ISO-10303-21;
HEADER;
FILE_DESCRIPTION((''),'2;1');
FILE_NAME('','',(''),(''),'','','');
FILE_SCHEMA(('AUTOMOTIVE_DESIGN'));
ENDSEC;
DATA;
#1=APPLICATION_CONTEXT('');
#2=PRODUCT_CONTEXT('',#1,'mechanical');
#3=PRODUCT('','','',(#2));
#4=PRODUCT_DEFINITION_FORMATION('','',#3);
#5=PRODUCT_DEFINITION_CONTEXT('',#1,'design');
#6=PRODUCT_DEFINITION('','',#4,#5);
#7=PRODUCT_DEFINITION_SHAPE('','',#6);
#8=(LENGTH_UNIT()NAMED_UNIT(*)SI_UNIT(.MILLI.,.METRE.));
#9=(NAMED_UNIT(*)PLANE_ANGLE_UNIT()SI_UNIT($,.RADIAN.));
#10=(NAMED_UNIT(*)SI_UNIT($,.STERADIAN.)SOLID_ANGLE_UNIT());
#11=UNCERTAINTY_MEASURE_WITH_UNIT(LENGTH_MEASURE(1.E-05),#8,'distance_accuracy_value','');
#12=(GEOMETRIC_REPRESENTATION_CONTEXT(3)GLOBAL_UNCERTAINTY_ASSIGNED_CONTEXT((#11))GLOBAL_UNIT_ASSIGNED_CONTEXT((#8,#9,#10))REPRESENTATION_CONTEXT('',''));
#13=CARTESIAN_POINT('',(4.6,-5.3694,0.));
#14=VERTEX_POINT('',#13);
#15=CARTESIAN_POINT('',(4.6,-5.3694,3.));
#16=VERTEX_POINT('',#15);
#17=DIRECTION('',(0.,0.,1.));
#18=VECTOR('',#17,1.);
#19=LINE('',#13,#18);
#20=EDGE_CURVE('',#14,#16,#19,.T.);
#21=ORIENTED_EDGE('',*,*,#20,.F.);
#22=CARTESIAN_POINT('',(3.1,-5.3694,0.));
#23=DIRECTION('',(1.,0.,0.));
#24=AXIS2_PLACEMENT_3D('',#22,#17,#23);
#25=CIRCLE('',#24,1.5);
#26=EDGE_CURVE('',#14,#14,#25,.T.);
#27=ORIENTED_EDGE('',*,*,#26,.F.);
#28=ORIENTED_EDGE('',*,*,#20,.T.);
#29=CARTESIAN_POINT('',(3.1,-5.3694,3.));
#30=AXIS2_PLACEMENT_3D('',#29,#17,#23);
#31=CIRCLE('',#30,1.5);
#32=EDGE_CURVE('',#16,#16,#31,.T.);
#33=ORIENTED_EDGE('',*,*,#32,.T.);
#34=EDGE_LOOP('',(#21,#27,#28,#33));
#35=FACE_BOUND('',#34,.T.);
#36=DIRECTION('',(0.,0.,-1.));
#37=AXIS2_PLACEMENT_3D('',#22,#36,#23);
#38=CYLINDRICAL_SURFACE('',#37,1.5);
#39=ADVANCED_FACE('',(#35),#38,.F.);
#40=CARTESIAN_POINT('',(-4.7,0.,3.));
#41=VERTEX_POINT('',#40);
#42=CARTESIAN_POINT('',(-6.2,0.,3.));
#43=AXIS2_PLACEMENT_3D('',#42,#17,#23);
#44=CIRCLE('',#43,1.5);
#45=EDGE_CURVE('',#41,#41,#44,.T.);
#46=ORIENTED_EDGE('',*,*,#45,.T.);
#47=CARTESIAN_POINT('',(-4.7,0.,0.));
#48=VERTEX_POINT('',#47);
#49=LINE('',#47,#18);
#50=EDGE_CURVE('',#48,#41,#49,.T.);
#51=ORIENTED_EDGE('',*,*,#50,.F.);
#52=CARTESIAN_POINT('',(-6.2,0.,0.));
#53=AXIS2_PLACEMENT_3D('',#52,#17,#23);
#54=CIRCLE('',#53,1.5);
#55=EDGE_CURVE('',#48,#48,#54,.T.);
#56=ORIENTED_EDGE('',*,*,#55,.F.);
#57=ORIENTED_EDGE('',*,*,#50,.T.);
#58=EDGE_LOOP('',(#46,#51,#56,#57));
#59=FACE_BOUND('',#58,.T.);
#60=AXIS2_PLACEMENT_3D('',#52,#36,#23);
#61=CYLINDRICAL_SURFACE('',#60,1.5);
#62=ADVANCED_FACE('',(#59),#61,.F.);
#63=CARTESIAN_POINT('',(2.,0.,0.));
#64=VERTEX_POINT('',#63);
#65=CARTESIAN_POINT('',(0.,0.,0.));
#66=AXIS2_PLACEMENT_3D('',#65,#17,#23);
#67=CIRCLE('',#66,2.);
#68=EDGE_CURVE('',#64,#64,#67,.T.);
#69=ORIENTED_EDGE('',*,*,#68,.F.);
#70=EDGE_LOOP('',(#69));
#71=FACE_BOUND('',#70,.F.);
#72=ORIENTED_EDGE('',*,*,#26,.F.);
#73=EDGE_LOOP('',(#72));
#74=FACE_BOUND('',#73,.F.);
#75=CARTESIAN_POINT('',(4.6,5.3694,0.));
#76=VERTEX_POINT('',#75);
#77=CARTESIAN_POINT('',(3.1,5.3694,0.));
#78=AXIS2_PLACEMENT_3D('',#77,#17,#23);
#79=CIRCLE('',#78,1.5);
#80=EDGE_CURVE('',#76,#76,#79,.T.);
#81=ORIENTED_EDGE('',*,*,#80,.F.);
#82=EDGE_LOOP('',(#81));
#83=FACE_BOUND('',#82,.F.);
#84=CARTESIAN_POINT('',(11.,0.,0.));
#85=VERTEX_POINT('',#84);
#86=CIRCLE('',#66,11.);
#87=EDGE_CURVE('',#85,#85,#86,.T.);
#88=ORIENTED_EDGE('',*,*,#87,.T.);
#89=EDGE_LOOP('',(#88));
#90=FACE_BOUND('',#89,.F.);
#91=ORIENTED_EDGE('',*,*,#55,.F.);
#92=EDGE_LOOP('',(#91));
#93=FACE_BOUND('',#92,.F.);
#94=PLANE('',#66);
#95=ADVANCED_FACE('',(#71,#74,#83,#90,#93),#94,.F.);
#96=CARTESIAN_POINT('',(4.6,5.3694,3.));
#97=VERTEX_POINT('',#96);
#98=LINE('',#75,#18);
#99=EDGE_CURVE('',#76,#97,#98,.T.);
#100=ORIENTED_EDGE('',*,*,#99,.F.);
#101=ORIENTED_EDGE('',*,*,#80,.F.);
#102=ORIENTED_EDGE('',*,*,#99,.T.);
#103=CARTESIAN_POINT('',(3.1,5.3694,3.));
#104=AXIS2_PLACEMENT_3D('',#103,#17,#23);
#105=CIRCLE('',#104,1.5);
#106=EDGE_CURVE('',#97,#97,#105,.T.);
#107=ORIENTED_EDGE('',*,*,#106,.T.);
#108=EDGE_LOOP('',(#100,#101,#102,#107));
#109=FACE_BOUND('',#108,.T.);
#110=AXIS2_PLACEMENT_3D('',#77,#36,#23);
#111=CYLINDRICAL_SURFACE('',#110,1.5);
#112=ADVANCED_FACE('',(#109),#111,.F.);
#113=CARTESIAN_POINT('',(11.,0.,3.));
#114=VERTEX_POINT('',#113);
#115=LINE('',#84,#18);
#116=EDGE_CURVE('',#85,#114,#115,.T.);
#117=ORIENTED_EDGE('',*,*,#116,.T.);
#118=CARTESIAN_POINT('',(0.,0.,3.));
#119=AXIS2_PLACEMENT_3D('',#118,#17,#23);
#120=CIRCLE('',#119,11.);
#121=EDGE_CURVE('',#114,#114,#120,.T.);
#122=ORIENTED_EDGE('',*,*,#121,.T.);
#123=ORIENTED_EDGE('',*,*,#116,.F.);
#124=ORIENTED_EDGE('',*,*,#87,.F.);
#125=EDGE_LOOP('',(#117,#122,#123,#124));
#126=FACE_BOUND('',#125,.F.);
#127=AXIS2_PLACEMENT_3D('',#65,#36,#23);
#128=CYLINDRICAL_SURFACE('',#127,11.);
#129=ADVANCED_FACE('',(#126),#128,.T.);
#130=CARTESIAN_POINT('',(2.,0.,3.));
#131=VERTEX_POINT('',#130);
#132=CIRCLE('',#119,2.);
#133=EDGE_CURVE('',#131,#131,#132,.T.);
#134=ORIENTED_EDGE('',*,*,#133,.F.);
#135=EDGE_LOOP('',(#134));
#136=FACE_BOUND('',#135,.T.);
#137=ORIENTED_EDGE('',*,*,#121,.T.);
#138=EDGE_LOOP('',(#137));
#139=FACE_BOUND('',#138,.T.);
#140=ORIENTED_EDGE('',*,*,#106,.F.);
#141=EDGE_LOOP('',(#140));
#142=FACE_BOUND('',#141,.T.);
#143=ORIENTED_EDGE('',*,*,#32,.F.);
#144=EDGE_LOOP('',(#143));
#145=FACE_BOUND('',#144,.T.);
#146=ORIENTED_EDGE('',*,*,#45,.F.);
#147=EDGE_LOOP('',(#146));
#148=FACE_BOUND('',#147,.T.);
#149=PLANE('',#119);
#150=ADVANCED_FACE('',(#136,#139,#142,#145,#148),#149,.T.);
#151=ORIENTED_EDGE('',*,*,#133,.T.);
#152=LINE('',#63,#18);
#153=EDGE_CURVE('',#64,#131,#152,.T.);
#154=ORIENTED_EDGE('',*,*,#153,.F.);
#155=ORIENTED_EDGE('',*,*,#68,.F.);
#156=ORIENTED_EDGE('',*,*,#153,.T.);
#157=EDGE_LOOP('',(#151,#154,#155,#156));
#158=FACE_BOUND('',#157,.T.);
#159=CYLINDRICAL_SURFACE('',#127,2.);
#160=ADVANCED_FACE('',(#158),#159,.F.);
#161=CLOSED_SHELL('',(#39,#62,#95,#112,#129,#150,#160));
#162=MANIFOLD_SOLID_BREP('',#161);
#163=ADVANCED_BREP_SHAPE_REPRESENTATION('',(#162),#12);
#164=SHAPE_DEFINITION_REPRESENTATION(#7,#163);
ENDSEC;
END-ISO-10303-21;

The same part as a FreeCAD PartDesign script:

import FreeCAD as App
import Part
import Sketcher

V = App.Vector
Q = App.Units.Quantity

doc = App.newDocument("Part")
body = doc.addObject("PartDesign::Body", "Body")

# Sketch on XY plane
sketch1 = body.newObject("Sketcher::SketchObject", "Sketch")
sketch1.AttachmentSupport = (doc.getObject("XY_Plane"), [""])
sketch1.MapMode = "FlatFace"
sketch1.addGeometry(Part.Circle(V(0, 0, 0), V(0, 0, 1), 11), False)
sketch1.addGeometry(Part.Circle(V(3.1, -5.4, 0), V(0, 0, 1), 1.5), False)
sketch1.addGeometry(Part.Circle(V(-6.2, 0, 0), V(0, 0, 1), 1.5), False)
sketch1.addGeometry(Part.Circle(V(0, 0, 0), V(0, 0, 1), 2), False)
sketch1.addGeometry(Part.Circle(V(3.1, 5.4, 0), V(0, 0, 1), 1.5), False)
sketch1.addConstraint(Sketcher.Constraint("Coincident", 0, 3, -1, 1))
sketch1.addConstraint(Sketcher.Constraint("Coincident", 3, 3, -1, 1))
sketch1.addConstraint(Sketcher.Constraint("Equal", 1, 2))
sketch1.addConstraint(Sketcher.Constraint("Equal", 2, 4))
sketch1.addConstraint(Sketcher.Constraint("Symmetric", 1, 3, 4, 3, -1))
sketch1.addConstraint(Sketcher.Constraint("PointOnObject", 2, 3, -1))
sketch1.addConstraint(Sketcher.Constraint("Diameter", 0, Q("22 mm")))
sketch1.addConstraint(Sketcher.Constraint("Diameter", 1, Q("3 mm")))
sketch1.addConstraint(Sketcher.Constraint("Diameter", 3, Q("4 mm")))
sketch1.addConstraint(Sketcher.Constraint("DistanceX", -1, 1, 1, 3, Q("3.1 mm")))
sketch1.addConstraint(Sketcher.Constraint("DistanceX", 2, 3, -1, 1, Q("6.2 mm")))
sketch1.addConstraint(Sketcher.Constraint("DistanceY", 1, 3, -1, 1, Q("5.3694 mm")))
pad1 = body.newObject("PartDesign::Pad", "Pad")
pad1.Profile = sketch1
pad1.Length = 3

doc.recompute()
